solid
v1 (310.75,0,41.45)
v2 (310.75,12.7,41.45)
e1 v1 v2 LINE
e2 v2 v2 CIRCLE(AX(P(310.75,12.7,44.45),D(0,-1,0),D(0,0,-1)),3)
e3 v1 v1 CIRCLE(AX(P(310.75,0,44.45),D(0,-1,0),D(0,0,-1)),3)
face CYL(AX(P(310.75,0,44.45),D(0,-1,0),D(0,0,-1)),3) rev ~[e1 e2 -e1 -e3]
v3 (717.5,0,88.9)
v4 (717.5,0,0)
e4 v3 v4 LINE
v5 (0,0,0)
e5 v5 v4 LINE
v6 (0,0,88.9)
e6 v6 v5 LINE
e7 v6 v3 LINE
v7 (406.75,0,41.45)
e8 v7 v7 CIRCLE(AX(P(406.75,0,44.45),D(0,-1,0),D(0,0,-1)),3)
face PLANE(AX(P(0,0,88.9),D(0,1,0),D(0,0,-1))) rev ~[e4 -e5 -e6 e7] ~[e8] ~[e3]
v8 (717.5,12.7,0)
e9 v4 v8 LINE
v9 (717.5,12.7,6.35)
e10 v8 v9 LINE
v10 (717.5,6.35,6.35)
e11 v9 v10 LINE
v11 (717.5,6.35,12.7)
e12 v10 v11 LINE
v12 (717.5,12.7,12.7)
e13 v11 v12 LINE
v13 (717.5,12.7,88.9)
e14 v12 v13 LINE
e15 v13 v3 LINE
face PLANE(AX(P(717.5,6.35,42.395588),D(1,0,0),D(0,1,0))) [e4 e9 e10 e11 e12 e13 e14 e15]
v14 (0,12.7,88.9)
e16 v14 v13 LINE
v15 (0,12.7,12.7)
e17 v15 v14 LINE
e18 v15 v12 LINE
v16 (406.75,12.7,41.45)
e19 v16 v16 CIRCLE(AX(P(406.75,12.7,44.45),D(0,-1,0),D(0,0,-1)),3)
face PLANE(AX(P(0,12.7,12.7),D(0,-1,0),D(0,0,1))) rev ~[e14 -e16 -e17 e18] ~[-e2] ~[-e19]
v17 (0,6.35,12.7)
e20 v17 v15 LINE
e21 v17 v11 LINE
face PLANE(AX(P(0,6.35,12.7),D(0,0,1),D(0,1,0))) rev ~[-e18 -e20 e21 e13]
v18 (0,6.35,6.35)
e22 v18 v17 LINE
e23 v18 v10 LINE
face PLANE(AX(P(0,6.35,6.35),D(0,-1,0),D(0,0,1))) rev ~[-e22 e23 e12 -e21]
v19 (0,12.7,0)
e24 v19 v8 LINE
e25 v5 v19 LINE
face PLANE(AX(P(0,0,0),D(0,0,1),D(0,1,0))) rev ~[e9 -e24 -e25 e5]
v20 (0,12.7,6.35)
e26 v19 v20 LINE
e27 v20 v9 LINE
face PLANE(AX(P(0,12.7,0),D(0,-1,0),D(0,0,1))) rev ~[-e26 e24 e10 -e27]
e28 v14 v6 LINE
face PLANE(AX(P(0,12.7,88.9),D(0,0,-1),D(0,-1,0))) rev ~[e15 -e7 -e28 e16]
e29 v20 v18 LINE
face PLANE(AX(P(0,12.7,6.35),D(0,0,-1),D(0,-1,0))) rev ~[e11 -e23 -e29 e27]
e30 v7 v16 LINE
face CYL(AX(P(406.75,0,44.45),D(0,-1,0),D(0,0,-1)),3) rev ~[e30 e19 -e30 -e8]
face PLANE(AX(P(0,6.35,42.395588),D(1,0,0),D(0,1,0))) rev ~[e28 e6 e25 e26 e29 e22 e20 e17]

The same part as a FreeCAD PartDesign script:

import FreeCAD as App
import Part
import Sketcher

V = App.Vector
Q = App.Units.Quantity


def add_polygon(sketch, points):
    """Adds a closed chain of lines whose ends are joined by coincident constraints."""
    first, n = sketch.GeometryCount, len(points)
    for a, b in zip(points, points[1:] + points[:1]):
        sketch.addGeometry(Part.LineSegment(App.Vector(*a, 0), App.Vector(*b, 0)), False)
    for i in range(n):
        sketch.addConstraint(Sketcher.Constraint("Coincident", first + i, 2, first + (i + 1) % n, 1))

doc = App.newDocument("Part")
body = doc.addObject("PartDesign::Body", "Body")

# Sketch on YZ plane
sketch1 = body.newObject("Sketcher::SketchObject", "Sketch")
sketch1.AttachmentSupport = (doc.getObject("YZ_Plane"), [""])
sketch1.MapMode = "FlatFace"
add_polygon(sketch1, [(0, 0), (13, 0), (13, 6), (6, 6), (6, 13), (13, 13), (13, 89), (0, 89)])  # lines 0-7
sketch1.addConstraint([
    Sketcher.Constraint("Horizontal", 0),
    Sketcher.Constraint("Vertical", 1),
    Sketcher.Constraint("Horizontal", 2),
    Sketcher.Constraint("Vertical", 3),
    Sketcher.Constraint("Horizontal", 4),
    Sketcher.Constraint("Vertical", 5),
    Sketcher.Constraint("Horizontal", 6),
    Sketcher.Constraint("Vertical", 7),
    Sketcher.Constraint("Coincident", 7, 2, -1, 1),
    Sketcher.Constraint("Vertical", 1, 2, 4, 2),
    Sketcher.Constraint("Equal", 4, 1),
    Sketcher.Constraint("Equal", 1, 3),
    Sketcher.Constraint("DistanceY", 5, 1, 5, 2, Q("3 in")),
    Sketcher.Constraint("DistanceX", 0, 1, 0, 2, Q("0.5 in")),
    Sketcher.Constraint("DistanceY", 7, 2, 7, 1, Q("3.5 in")),
])
pad1 = body.newObject("PartDesign::Pad", "Pad")
pad1.Profile = sketch1
pad1.Length = 717.5

# Sketch on XZ plane
sketch2 = body.newObject("Sketcher::SketchObject", "Sketch001")
sketch2.AttachmentSupport = (doc.getObject("XZ_Plane"), [""])
sketch2.MapMode = "FlatFace"
sketch2.addGeometry([
    Part.Circle(V(310.8, 44.5, 0), V(0, 0, 1), 3),
    Part.Circle(V(406.8, 44.5, 0), V(0, 0, 1), 3),
], False)
sketch2.addConstraint([
    Sketcher.Constraint("Equal", 0, 1),
    Sketcher.Constraint("Horizontal", 0, 3, 1, 3),
    Sketcher.Constraint("Diameter", 0, 6.0),
    Sketcher.Constraint("DistanceY", -1, 1, 0, 3, Q("1.75 in")),
    Sketcher.Constraint("DistanceX", -1, 1, 0, 3, 310.75),
    Sketcher.Constraint("DistanceX", -1, 1, 1, 3, 406.75),
])
pocket1 = body.newObject("PartDesign::Pocket", "Pocket")
pocket1.Profile = sketch2
pocket1.Type = "ThroughAll"

doc.recompute()
